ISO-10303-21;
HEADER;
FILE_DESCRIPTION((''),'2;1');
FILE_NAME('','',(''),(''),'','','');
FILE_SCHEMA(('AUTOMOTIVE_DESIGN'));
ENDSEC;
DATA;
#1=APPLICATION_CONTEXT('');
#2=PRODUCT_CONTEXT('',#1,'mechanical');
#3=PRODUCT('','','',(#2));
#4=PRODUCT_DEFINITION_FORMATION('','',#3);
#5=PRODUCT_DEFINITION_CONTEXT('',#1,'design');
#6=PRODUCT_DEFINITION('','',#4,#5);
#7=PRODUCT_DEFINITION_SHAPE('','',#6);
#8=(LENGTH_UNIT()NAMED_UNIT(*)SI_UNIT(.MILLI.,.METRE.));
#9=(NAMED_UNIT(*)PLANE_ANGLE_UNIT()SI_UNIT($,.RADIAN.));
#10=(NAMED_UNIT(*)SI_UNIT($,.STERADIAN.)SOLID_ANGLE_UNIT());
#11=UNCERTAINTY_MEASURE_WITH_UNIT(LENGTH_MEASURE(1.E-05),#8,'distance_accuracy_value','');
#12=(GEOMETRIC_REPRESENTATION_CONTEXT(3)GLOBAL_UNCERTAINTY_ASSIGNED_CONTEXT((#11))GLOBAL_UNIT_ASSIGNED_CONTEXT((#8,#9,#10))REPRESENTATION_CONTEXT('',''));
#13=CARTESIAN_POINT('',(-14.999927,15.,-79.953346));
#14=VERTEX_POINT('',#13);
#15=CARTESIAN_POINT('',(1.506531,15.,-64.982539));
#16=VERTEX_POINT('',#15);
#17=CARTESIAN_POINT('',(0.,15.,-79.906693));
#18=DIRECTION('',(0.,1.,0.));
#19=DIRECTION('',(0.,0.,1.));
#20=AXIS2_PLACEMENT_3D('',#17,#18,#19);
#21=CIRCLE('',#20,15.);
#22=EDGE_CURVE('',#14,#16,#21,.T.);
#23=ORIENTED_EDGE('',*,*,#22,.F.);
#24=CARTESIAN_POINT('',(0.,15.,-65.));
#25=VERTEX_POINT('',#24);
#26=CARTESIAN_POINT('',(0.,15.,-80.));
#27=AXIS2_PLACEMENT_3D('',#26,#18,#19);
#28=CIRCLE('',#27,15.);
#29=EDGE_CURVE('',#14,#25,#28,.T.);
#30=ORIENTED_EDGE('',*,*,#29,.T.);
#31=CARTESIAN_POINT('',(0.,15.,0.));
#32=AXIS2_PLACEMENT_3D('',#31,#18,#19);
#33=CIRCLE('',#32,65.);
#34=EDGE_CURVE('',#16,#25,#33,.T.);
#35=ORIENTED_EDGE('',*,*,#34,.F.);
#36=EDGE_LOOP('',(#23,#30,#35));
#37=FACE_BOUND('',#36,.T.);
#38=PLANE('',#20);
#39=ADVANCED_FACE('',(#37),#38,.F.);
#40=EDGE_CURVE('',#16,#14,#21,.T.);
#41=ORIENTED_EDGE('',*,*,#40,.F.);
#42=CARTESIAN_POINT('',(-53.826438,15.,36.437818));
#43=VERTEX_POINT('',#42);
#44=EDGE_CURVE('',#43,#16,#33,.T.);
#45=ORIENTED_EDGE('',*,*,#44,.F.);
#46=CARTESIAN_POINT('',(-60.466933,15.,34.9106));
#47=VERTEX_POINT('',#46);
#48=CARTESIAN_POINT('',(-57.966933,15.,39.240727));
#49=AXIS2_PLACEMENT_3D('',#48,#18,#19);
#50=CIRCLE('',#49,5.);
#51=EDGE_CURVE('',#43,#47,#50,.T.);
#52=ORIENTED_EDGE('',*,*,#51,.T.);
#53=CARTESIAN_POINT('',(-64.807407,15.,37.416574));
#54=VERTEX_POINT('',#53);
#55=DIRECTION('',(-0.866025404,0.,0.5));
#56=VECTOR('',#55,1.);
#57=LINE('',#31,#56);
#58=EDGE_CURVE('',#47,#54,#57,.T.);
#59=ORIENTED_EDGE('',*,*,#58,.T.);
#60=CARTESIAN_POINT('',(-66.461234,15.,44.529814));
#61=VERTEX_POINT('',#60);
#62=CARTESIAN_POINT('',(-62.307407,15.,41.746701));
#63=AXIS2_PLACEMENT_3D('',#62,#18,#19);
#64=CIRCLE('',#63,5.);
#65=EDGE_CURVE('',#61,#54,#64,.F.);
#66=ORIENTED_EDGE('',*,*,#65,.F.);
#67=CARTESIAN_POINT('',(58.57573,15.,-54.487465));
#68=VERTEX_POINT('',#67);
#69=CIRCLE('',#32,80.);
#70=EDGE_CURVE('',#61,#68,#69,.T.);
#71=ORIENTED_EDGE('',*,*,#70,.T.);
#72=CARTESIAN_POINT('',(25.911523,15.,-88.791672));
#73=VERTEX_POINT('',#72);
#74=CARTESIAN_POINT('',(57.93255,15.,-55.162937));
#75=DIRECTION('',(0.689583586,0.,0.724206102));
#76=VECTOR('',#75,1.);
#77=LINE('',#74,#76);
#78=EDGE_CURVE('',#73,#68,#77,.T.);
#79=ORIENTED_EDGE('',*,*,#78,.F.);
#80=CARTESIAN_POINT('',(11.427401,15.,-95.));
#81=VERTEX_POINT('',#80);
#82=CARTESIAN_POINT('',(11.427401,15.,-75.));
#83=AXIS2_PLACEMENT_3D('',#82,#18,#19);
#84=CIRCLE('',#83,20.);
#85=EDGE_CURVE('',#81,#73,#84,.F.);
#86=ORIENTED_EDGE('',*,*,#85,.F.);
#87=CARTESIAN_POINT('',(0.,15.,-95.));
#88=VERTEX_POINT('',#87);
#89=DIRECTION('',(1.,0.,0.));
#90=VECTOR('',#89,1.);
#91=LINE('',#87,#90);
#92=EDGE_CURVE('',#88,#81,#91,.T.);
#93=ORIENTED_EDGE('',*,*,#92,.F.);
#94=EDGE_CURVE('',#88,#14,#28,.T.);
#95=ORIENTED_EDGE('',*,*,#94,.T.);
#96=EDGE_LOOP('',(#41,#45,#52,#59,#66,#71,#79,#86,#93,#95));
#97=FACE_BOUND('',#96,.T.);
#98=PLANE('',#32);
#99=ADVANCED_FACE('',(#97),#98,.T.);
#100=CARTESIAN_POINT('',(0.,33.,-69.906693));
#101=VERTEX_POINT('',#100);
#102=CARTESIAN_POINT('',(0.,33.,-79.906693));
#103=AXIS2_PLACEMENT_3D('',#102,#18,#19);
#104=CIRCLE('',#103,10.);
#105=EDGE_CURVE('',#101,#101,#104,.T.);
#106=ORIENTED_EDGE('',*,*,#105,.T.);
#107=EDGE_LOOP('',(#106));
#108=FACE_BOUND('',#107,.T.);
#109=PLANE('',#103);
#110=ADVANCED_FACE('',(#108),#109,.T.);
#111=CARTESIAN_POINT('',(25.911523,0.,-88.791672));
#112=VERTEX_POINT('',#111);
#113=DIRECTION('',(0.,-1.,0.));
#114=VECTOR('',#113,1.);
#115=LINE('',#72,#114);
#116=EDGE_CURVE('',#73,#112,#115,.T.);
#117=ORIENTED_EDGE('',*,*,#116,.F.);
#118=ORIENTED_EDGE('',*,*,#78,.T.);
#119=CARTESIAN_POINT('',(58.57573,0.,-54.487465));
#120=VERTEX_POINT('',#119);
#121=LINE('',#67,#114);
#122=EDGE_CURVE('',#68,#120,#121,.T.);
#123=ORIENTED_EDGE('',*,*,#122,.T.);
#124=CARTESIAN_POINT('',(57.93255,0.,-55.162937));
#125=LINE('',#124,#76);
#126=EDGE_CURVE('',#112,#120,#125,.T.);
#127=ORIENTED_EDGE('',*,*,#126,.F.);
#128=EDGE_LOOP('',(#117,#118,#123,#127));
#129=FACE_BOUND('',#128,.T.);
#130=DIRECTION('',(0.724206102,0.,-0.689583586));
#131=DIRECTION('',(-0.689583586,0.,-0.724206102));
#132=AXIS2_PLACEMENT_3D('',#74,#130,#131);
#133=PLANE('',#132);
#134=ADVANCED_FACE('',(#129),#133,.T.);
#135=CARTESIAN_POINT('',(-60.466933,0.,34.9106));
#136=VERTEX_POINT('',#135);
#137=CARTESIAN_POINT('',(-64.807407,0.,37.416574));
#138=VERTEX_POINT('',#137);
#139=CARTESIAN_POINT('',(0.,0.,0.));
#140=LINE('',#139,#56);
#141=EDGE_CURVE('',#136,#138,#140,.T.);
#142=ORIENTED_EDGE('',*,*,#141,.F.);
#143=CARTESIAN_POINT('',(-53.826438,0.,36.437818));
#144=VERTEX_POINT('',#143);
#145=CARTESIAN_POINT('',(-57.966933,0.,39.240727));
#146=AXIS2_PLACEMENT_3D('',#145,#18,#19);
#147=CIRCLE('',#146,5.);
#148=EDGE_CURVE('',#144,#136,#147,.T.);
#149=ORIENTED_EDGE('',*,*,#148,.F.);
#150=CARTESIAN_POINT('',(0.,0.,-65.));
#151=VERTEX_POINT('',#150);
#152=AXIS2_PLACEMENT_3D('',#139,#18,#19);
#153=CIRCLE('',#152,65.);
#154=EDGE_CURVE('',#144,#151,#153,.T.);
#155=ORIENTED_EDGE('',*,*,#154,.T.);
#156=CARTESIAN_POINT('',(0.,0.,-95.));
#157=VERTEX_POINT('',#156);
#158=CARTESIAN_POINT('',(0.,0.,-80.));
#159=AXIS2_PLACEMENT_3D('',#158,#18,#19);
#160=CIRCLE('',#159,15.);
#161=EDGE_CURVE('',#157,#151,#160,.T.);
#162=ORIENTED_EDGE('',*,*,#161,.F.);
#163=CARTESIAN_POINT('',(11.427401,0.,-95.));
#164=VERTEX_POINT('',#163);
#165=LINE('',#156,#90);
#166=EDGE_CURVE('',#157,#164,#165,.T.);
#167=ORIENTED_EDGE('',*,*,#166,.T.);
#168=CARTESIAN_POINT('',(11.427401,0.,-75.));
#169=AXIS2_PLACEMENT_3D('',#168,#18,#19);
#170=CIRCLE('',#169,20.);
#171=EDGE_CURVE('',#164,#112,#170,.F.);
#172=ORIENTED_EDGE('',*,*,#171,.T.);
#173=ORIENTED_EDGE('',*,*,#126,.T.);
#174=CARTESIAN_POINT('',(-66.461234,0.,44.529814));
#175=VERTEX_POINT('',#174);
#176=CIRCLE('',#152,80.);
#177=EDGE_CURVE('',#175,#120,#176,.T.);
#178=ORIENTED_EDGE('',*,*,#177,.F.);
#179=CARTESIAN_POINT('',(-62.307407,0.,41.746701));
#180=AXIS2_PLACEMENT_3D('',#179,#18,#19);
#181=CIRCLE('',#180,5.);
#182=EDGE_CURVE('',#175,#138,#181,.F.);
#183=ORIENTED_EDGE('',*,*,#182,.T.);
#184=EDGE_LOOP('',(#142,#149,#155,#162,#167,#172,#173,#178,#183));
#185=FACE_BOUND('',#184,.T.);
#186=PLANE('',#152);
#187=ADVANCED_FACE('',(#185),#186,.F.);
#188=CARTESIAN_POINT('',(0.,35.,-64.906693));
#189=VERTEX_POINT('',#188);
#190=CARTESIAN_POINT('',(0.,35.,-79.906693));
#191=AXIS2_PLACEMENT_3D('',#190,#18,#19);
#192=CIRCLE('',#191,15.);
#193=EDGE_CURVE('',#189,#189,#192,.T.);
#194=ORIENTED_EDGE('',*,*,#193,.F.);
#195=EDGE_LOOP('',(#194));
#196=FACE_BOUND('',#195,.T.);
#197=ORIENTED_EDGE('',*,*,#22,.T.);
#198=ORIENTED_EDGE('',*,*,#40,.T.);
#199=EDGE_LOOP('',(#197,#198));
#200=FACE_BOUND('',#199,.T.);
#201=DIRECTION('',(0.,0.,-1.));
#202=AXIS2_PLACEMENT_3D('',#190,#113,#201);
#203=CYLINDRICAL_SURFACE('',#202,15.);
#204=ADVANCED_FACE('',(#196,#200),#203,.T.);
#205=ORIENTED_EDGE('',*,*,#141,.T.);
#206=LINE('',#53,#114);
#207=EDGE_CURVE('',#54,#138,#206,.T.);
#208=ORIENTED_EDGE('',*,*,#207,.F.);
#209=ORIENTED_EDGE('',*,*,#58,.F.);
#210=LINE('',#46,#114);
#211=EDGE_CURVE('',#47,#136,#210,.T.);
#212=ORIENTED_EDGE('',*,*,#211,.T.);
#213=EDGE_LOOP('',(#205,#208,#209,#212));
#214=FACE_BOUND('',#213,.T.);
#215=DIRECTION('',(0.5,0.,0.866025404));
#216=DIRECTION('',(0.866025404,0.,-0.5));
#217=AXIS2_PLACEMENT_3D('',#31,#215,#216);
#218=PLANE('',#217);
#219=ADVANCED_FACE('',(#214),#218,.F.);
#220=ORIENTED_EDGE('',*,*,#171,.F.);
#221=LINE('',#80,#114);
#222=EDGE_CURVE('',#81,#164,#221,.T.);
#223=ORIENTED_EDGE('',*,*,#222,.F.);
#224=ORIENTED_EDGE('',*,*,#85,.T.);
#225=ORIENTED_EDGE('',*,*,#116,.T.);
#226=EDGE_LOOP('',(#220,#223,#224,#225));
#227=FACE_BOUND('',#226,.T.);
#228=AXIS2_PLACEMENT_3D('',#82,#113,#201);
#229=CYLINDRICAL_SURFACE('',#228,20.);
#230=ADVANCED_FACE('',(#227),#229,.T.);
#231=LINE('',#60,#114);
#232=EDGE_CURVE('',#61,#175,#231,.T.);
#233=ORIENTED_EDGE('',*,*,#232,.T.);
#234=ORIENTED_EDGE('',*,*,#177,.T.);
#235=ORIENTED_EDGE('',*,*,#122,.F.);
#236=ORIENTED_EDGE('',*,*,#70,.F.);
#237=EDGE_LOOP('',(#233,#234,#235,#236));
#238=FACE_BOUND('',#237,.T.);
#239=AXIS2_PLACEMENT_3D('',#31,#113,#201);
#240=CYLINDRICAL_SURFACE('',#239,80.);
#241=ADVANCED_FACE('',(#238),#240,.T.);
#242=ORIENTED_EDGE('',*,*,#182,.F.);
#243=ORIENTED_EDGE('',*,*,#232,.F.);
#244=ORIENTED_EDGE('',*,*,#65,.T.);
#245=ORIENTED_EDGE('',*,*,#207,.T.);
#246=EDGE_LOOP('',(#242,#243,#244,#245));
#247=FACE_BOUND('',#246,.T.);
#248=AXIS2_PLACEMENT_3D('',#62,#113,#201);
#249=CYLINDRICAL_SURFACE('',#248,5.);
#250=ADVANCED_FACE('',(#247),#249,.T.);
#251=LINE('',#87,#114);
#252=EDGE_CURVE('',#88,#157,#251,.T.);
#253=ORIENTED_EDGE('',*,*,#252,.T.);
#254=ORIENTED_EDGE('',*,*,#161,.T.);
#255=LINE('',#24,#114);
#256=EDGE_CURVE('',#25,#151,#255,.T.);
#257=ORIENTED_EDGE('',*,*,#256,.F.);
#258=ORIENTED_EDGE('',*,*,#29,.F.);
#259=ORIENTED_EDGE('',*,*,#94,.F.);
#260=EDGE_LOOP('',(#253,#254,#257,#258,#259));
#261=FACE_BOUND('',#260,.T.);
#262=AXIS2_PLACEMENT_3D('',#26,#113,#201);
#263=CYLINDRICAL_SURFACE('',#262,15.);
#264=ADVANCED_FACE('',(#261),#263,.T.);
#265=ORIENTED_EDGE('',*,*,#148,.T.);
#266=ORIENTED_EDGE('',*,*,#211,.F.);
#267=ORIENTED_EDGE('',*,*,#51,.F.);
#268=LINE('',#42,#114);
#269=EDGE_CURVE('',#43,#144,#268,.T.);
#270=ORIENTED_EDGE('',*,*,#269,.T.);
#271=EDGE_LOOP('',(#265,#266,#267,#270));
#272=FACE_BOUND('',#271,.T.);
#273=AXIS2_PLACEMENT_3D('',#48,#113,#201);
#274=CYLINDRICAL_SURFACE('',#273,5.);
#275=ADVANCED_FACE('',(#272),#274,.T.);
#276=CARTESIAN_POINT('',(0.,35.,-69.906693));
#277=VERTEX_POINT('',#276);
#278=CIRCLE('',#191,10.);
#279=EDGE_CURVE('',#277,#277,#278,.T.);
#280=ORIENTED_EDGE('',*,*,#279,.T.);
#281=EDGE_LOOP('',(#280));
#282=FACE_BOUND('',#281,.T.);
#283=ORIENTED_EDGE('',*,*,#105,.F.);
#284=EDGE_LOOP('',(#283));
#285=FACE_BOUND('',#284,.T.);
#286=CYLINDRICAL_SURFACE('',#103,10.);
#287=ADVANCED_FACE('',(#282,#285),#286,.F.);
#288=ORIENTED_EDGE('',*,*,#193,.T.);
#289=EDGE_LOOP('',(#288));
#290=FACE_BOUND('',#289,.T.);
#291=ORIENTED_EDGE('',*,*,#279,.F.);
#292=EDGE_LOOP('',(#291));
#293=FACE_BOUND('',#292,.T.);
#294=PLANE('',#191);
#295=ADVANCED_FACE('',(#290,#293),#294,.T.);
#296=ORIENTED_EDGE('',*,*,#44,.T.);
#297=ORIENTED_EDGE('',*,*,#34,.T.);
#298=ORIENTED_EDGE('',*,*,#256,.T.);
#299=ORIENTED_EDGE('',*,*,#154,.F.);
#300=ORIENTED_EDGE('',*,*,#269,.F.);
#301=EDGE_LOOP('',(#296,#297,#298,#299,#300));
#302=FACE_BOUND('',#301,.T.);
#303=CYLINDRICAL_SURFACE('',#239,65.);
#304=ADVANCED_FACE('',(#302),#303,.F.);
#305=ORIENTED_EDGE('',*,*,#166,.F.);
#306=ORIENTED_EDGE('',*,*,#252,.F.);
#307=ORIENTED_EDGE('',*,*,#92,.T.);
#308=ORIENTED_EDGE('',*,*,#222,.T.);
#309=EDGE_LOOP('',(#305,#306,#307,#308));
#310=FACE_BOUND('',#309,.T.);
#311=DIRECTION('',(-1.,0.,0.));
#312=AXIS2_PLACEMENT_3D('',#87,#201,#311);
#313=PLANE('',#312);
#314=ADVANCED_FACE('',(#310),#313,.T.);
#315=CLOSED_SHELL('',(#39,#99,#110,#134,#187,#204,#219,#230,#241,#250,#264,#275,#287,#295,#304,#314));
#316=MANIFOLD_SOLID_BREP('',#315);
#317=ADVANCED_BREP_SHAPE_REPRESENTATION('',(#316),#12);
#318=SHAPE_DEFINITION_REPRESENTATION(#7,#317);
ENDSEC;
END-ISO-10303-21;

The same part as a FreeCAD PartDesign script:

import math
import FreeCAD as App
import Part
import Sketcher

V = App.Vector
Q = App.Units.Quantity

doc = App.newDocument("Part")
body = doc.addObject("PartDesign::Body", "Body")

# Sketch on XZ plane
sketch1 = doc.addObject("Sketcher::SketchObject", "Sketch")
body.addObject(sketch1)
sketch1.AttachmentSupport = (doc.XZ_Plane, [""])
sketch1.MapMode = "FlatFace"
sketch1.addGeometry([
    Part.ArcOfCircle(Part.Circle(V(-58, 39.2, 0), V(0, 0, 1), 5), math.radians(-120), math.radians(-34)),  # 0
    Part.LineSegment(V(-60.5, 34.9, 0), V(-64.8, 37.4, 0)),  # 1
    Part.ArcOfCircle(Part.Circle(V(-62.3, 41.7, 0), V(0, 0, 1), 5), math.radians(146), math.radians(240)),  # 2
    Part.ArcOfCircle(Part.Circle(V(0, 0, 0), V(0, 0, 1), 80), math.radians(-43), math.radians(146)),  # 3
    Part.LineSegment(V(58.6, -54.5, 0), V(57.3, -55.8, 0)),  # 4
    Part.LineSegment(V(57.3, -55.8, 0), V(25.9, -88.8, 0)),  # 5
    Part.ArcOfCircle(Part.Circle(V(11.4, -75, 0), V(0, 0, 1), 20), math.radians(-90), math.radians(-44)),  # 6
    Part.LineSegment(V(11.4, -95, 0), V(0, -95, 0)),  # 7
    Part.ArcOfCircle(Part.Circle(V(0, -80, 0), V(0, 0, 1), 15), math.radians(90), math.radians(270)),  # 8
    Part.ArcOfCircle(Part.Circle(V(0, 0, 0), V(0, 0, 1), 65), math.radians(-90), math.radians(146)),  # 9
], False)
sketch1.addConstraint([
    Sketcher.Constraint("Tangent", 0, 1, 1, 1),
    Sketcher.Constraint("Tangent", 1, 2, 2, 2),
    Sketcher.Constraint("Tangent", 2, 1, 3, 2),
    Sketcher.Constraint("Coincident", 3, 1, 4, 1),
    Sketcher.Constraint("Coincident", 4, 2, 5, 1),
    Sketcher.Constraint("Tangent", 5, 2, 6, 2),
    Sketcher.Constraint("Tangent", 6, 1, 7, 1),
    Sketcher.Constraint("Tangent", 7, 2, 8, 2),
    Sketcher.Constraint("Tangent", 8, 1, 9, 1),
    Sketcher.Constraint("Tangent", 9, 2, 0, 2),
    Sketcher.Constraint("Horizontal", 7),
    Sketcher.Constraint("Coincident", 3, 3, -1, 1),
    Sketcher.Constraint("Coincident", 9, 3, -1, 1),
    Sketcher.Constraint("Equal", 0, 2),
    Sketcher.Constraint("PointOnObject", 8, 3, -2),
    Sketcher.Constraint("Parallel", 4, 5),
    Sketcher.Constraint("Radius", 0, 5.0),
    Sketcher.Constraint("Radius", 3, 80.0),
    Sketcher.Constraint("Radius", 6, 20.0),
    Sketcher.Constraint("Radius", 8, 15.0),
    Sketcher.Constraint("Radius", 9, 65.0),
    Sketcher.Constraint("Angle", 1, Q("150 deg")),
    Sketcher.Constraint("DistanceX", 7, 2, 7, 1, 11.427401),
    Sketcher.Constraint("DistanceY", -1, 1, 2, 3, 41.746701),
    Sketcher.Constraint("DistanceX", -1, 1, 3, 1, 58.57573),
    Sketcher.Constraint("DistanceX", -1, 1, 4, 2, 57.289371),
])
pad1 = doc.addObject("PartDesign::Pad", "Pad")
body.addObject(pad1)
pad1.Profile = sketch1
pad1.Length = 15
pad1.Reversed = True

# Sketch on XZ plane
sketch2 = doc.addObject("Sketcher::SketchObject", "Sketch001")
body.addObject(sketch2)
sketch2.AttachmentSupport = (doc.XZ_Plane, [""])
sketch2.MapMode = "FlatFace"
sketch2.AttachmentOffset = App.Placement(V(0, 0, -15), App.Rotation())
sketch2.addGeometry(Part.Circle(V(0, -80, 0), V(0, 0, 1), 15), False)
sketch2.addConstraint([
    Sketcher.Constraint("PointOnObject", 0, 3, -2),
    Sketcher.Constraint("Diameter", 0, 30.0),
    Sketcher.Constraint("DistanceY", 0, 3, -1, 1, 79.906693),
])
pad2 = doc.addObject("PartDesign::Pad", "Pad001")
body.addObject(pad2)
pad2.Profile = sketch2
pad2.Length = 20
pad2.Reversed = True

# Sketch on XZ plane
sketch3 = doc.addObject("Sketcher::SketchObject", "Sketch002")
body.addObject(sketch3)
sketch3.AttachmentSupport = (doc.XZ_Plane, [""])
sketch3.MapMode = "FlatFace"
sketch3.AttachmentOffset = App.Placement(V(0, 0, -35), App.Rotation())
sketch3.addGeometry(Part.Circle(V(0, -80, 0), V(0, 0, 1), 10), False)
sketch3.addConstraint([
    Sketcher.Constraint("PointOnObject", 0, 3, -2),
    Sketcher.Constraint("Diameter", 0, 20.0),
    Sketcher.Constraint("DistanceY", 0, 3, -1, 1, 79.906693),
])
pocket1 = doc.addObject("PartDesign::Pocket", "Pocket")
body.addObject(pocket1)
pocket1.Profile = sketch3
pocket1.Length = 2
pocket1.Reversed = True

doc.recompute()
